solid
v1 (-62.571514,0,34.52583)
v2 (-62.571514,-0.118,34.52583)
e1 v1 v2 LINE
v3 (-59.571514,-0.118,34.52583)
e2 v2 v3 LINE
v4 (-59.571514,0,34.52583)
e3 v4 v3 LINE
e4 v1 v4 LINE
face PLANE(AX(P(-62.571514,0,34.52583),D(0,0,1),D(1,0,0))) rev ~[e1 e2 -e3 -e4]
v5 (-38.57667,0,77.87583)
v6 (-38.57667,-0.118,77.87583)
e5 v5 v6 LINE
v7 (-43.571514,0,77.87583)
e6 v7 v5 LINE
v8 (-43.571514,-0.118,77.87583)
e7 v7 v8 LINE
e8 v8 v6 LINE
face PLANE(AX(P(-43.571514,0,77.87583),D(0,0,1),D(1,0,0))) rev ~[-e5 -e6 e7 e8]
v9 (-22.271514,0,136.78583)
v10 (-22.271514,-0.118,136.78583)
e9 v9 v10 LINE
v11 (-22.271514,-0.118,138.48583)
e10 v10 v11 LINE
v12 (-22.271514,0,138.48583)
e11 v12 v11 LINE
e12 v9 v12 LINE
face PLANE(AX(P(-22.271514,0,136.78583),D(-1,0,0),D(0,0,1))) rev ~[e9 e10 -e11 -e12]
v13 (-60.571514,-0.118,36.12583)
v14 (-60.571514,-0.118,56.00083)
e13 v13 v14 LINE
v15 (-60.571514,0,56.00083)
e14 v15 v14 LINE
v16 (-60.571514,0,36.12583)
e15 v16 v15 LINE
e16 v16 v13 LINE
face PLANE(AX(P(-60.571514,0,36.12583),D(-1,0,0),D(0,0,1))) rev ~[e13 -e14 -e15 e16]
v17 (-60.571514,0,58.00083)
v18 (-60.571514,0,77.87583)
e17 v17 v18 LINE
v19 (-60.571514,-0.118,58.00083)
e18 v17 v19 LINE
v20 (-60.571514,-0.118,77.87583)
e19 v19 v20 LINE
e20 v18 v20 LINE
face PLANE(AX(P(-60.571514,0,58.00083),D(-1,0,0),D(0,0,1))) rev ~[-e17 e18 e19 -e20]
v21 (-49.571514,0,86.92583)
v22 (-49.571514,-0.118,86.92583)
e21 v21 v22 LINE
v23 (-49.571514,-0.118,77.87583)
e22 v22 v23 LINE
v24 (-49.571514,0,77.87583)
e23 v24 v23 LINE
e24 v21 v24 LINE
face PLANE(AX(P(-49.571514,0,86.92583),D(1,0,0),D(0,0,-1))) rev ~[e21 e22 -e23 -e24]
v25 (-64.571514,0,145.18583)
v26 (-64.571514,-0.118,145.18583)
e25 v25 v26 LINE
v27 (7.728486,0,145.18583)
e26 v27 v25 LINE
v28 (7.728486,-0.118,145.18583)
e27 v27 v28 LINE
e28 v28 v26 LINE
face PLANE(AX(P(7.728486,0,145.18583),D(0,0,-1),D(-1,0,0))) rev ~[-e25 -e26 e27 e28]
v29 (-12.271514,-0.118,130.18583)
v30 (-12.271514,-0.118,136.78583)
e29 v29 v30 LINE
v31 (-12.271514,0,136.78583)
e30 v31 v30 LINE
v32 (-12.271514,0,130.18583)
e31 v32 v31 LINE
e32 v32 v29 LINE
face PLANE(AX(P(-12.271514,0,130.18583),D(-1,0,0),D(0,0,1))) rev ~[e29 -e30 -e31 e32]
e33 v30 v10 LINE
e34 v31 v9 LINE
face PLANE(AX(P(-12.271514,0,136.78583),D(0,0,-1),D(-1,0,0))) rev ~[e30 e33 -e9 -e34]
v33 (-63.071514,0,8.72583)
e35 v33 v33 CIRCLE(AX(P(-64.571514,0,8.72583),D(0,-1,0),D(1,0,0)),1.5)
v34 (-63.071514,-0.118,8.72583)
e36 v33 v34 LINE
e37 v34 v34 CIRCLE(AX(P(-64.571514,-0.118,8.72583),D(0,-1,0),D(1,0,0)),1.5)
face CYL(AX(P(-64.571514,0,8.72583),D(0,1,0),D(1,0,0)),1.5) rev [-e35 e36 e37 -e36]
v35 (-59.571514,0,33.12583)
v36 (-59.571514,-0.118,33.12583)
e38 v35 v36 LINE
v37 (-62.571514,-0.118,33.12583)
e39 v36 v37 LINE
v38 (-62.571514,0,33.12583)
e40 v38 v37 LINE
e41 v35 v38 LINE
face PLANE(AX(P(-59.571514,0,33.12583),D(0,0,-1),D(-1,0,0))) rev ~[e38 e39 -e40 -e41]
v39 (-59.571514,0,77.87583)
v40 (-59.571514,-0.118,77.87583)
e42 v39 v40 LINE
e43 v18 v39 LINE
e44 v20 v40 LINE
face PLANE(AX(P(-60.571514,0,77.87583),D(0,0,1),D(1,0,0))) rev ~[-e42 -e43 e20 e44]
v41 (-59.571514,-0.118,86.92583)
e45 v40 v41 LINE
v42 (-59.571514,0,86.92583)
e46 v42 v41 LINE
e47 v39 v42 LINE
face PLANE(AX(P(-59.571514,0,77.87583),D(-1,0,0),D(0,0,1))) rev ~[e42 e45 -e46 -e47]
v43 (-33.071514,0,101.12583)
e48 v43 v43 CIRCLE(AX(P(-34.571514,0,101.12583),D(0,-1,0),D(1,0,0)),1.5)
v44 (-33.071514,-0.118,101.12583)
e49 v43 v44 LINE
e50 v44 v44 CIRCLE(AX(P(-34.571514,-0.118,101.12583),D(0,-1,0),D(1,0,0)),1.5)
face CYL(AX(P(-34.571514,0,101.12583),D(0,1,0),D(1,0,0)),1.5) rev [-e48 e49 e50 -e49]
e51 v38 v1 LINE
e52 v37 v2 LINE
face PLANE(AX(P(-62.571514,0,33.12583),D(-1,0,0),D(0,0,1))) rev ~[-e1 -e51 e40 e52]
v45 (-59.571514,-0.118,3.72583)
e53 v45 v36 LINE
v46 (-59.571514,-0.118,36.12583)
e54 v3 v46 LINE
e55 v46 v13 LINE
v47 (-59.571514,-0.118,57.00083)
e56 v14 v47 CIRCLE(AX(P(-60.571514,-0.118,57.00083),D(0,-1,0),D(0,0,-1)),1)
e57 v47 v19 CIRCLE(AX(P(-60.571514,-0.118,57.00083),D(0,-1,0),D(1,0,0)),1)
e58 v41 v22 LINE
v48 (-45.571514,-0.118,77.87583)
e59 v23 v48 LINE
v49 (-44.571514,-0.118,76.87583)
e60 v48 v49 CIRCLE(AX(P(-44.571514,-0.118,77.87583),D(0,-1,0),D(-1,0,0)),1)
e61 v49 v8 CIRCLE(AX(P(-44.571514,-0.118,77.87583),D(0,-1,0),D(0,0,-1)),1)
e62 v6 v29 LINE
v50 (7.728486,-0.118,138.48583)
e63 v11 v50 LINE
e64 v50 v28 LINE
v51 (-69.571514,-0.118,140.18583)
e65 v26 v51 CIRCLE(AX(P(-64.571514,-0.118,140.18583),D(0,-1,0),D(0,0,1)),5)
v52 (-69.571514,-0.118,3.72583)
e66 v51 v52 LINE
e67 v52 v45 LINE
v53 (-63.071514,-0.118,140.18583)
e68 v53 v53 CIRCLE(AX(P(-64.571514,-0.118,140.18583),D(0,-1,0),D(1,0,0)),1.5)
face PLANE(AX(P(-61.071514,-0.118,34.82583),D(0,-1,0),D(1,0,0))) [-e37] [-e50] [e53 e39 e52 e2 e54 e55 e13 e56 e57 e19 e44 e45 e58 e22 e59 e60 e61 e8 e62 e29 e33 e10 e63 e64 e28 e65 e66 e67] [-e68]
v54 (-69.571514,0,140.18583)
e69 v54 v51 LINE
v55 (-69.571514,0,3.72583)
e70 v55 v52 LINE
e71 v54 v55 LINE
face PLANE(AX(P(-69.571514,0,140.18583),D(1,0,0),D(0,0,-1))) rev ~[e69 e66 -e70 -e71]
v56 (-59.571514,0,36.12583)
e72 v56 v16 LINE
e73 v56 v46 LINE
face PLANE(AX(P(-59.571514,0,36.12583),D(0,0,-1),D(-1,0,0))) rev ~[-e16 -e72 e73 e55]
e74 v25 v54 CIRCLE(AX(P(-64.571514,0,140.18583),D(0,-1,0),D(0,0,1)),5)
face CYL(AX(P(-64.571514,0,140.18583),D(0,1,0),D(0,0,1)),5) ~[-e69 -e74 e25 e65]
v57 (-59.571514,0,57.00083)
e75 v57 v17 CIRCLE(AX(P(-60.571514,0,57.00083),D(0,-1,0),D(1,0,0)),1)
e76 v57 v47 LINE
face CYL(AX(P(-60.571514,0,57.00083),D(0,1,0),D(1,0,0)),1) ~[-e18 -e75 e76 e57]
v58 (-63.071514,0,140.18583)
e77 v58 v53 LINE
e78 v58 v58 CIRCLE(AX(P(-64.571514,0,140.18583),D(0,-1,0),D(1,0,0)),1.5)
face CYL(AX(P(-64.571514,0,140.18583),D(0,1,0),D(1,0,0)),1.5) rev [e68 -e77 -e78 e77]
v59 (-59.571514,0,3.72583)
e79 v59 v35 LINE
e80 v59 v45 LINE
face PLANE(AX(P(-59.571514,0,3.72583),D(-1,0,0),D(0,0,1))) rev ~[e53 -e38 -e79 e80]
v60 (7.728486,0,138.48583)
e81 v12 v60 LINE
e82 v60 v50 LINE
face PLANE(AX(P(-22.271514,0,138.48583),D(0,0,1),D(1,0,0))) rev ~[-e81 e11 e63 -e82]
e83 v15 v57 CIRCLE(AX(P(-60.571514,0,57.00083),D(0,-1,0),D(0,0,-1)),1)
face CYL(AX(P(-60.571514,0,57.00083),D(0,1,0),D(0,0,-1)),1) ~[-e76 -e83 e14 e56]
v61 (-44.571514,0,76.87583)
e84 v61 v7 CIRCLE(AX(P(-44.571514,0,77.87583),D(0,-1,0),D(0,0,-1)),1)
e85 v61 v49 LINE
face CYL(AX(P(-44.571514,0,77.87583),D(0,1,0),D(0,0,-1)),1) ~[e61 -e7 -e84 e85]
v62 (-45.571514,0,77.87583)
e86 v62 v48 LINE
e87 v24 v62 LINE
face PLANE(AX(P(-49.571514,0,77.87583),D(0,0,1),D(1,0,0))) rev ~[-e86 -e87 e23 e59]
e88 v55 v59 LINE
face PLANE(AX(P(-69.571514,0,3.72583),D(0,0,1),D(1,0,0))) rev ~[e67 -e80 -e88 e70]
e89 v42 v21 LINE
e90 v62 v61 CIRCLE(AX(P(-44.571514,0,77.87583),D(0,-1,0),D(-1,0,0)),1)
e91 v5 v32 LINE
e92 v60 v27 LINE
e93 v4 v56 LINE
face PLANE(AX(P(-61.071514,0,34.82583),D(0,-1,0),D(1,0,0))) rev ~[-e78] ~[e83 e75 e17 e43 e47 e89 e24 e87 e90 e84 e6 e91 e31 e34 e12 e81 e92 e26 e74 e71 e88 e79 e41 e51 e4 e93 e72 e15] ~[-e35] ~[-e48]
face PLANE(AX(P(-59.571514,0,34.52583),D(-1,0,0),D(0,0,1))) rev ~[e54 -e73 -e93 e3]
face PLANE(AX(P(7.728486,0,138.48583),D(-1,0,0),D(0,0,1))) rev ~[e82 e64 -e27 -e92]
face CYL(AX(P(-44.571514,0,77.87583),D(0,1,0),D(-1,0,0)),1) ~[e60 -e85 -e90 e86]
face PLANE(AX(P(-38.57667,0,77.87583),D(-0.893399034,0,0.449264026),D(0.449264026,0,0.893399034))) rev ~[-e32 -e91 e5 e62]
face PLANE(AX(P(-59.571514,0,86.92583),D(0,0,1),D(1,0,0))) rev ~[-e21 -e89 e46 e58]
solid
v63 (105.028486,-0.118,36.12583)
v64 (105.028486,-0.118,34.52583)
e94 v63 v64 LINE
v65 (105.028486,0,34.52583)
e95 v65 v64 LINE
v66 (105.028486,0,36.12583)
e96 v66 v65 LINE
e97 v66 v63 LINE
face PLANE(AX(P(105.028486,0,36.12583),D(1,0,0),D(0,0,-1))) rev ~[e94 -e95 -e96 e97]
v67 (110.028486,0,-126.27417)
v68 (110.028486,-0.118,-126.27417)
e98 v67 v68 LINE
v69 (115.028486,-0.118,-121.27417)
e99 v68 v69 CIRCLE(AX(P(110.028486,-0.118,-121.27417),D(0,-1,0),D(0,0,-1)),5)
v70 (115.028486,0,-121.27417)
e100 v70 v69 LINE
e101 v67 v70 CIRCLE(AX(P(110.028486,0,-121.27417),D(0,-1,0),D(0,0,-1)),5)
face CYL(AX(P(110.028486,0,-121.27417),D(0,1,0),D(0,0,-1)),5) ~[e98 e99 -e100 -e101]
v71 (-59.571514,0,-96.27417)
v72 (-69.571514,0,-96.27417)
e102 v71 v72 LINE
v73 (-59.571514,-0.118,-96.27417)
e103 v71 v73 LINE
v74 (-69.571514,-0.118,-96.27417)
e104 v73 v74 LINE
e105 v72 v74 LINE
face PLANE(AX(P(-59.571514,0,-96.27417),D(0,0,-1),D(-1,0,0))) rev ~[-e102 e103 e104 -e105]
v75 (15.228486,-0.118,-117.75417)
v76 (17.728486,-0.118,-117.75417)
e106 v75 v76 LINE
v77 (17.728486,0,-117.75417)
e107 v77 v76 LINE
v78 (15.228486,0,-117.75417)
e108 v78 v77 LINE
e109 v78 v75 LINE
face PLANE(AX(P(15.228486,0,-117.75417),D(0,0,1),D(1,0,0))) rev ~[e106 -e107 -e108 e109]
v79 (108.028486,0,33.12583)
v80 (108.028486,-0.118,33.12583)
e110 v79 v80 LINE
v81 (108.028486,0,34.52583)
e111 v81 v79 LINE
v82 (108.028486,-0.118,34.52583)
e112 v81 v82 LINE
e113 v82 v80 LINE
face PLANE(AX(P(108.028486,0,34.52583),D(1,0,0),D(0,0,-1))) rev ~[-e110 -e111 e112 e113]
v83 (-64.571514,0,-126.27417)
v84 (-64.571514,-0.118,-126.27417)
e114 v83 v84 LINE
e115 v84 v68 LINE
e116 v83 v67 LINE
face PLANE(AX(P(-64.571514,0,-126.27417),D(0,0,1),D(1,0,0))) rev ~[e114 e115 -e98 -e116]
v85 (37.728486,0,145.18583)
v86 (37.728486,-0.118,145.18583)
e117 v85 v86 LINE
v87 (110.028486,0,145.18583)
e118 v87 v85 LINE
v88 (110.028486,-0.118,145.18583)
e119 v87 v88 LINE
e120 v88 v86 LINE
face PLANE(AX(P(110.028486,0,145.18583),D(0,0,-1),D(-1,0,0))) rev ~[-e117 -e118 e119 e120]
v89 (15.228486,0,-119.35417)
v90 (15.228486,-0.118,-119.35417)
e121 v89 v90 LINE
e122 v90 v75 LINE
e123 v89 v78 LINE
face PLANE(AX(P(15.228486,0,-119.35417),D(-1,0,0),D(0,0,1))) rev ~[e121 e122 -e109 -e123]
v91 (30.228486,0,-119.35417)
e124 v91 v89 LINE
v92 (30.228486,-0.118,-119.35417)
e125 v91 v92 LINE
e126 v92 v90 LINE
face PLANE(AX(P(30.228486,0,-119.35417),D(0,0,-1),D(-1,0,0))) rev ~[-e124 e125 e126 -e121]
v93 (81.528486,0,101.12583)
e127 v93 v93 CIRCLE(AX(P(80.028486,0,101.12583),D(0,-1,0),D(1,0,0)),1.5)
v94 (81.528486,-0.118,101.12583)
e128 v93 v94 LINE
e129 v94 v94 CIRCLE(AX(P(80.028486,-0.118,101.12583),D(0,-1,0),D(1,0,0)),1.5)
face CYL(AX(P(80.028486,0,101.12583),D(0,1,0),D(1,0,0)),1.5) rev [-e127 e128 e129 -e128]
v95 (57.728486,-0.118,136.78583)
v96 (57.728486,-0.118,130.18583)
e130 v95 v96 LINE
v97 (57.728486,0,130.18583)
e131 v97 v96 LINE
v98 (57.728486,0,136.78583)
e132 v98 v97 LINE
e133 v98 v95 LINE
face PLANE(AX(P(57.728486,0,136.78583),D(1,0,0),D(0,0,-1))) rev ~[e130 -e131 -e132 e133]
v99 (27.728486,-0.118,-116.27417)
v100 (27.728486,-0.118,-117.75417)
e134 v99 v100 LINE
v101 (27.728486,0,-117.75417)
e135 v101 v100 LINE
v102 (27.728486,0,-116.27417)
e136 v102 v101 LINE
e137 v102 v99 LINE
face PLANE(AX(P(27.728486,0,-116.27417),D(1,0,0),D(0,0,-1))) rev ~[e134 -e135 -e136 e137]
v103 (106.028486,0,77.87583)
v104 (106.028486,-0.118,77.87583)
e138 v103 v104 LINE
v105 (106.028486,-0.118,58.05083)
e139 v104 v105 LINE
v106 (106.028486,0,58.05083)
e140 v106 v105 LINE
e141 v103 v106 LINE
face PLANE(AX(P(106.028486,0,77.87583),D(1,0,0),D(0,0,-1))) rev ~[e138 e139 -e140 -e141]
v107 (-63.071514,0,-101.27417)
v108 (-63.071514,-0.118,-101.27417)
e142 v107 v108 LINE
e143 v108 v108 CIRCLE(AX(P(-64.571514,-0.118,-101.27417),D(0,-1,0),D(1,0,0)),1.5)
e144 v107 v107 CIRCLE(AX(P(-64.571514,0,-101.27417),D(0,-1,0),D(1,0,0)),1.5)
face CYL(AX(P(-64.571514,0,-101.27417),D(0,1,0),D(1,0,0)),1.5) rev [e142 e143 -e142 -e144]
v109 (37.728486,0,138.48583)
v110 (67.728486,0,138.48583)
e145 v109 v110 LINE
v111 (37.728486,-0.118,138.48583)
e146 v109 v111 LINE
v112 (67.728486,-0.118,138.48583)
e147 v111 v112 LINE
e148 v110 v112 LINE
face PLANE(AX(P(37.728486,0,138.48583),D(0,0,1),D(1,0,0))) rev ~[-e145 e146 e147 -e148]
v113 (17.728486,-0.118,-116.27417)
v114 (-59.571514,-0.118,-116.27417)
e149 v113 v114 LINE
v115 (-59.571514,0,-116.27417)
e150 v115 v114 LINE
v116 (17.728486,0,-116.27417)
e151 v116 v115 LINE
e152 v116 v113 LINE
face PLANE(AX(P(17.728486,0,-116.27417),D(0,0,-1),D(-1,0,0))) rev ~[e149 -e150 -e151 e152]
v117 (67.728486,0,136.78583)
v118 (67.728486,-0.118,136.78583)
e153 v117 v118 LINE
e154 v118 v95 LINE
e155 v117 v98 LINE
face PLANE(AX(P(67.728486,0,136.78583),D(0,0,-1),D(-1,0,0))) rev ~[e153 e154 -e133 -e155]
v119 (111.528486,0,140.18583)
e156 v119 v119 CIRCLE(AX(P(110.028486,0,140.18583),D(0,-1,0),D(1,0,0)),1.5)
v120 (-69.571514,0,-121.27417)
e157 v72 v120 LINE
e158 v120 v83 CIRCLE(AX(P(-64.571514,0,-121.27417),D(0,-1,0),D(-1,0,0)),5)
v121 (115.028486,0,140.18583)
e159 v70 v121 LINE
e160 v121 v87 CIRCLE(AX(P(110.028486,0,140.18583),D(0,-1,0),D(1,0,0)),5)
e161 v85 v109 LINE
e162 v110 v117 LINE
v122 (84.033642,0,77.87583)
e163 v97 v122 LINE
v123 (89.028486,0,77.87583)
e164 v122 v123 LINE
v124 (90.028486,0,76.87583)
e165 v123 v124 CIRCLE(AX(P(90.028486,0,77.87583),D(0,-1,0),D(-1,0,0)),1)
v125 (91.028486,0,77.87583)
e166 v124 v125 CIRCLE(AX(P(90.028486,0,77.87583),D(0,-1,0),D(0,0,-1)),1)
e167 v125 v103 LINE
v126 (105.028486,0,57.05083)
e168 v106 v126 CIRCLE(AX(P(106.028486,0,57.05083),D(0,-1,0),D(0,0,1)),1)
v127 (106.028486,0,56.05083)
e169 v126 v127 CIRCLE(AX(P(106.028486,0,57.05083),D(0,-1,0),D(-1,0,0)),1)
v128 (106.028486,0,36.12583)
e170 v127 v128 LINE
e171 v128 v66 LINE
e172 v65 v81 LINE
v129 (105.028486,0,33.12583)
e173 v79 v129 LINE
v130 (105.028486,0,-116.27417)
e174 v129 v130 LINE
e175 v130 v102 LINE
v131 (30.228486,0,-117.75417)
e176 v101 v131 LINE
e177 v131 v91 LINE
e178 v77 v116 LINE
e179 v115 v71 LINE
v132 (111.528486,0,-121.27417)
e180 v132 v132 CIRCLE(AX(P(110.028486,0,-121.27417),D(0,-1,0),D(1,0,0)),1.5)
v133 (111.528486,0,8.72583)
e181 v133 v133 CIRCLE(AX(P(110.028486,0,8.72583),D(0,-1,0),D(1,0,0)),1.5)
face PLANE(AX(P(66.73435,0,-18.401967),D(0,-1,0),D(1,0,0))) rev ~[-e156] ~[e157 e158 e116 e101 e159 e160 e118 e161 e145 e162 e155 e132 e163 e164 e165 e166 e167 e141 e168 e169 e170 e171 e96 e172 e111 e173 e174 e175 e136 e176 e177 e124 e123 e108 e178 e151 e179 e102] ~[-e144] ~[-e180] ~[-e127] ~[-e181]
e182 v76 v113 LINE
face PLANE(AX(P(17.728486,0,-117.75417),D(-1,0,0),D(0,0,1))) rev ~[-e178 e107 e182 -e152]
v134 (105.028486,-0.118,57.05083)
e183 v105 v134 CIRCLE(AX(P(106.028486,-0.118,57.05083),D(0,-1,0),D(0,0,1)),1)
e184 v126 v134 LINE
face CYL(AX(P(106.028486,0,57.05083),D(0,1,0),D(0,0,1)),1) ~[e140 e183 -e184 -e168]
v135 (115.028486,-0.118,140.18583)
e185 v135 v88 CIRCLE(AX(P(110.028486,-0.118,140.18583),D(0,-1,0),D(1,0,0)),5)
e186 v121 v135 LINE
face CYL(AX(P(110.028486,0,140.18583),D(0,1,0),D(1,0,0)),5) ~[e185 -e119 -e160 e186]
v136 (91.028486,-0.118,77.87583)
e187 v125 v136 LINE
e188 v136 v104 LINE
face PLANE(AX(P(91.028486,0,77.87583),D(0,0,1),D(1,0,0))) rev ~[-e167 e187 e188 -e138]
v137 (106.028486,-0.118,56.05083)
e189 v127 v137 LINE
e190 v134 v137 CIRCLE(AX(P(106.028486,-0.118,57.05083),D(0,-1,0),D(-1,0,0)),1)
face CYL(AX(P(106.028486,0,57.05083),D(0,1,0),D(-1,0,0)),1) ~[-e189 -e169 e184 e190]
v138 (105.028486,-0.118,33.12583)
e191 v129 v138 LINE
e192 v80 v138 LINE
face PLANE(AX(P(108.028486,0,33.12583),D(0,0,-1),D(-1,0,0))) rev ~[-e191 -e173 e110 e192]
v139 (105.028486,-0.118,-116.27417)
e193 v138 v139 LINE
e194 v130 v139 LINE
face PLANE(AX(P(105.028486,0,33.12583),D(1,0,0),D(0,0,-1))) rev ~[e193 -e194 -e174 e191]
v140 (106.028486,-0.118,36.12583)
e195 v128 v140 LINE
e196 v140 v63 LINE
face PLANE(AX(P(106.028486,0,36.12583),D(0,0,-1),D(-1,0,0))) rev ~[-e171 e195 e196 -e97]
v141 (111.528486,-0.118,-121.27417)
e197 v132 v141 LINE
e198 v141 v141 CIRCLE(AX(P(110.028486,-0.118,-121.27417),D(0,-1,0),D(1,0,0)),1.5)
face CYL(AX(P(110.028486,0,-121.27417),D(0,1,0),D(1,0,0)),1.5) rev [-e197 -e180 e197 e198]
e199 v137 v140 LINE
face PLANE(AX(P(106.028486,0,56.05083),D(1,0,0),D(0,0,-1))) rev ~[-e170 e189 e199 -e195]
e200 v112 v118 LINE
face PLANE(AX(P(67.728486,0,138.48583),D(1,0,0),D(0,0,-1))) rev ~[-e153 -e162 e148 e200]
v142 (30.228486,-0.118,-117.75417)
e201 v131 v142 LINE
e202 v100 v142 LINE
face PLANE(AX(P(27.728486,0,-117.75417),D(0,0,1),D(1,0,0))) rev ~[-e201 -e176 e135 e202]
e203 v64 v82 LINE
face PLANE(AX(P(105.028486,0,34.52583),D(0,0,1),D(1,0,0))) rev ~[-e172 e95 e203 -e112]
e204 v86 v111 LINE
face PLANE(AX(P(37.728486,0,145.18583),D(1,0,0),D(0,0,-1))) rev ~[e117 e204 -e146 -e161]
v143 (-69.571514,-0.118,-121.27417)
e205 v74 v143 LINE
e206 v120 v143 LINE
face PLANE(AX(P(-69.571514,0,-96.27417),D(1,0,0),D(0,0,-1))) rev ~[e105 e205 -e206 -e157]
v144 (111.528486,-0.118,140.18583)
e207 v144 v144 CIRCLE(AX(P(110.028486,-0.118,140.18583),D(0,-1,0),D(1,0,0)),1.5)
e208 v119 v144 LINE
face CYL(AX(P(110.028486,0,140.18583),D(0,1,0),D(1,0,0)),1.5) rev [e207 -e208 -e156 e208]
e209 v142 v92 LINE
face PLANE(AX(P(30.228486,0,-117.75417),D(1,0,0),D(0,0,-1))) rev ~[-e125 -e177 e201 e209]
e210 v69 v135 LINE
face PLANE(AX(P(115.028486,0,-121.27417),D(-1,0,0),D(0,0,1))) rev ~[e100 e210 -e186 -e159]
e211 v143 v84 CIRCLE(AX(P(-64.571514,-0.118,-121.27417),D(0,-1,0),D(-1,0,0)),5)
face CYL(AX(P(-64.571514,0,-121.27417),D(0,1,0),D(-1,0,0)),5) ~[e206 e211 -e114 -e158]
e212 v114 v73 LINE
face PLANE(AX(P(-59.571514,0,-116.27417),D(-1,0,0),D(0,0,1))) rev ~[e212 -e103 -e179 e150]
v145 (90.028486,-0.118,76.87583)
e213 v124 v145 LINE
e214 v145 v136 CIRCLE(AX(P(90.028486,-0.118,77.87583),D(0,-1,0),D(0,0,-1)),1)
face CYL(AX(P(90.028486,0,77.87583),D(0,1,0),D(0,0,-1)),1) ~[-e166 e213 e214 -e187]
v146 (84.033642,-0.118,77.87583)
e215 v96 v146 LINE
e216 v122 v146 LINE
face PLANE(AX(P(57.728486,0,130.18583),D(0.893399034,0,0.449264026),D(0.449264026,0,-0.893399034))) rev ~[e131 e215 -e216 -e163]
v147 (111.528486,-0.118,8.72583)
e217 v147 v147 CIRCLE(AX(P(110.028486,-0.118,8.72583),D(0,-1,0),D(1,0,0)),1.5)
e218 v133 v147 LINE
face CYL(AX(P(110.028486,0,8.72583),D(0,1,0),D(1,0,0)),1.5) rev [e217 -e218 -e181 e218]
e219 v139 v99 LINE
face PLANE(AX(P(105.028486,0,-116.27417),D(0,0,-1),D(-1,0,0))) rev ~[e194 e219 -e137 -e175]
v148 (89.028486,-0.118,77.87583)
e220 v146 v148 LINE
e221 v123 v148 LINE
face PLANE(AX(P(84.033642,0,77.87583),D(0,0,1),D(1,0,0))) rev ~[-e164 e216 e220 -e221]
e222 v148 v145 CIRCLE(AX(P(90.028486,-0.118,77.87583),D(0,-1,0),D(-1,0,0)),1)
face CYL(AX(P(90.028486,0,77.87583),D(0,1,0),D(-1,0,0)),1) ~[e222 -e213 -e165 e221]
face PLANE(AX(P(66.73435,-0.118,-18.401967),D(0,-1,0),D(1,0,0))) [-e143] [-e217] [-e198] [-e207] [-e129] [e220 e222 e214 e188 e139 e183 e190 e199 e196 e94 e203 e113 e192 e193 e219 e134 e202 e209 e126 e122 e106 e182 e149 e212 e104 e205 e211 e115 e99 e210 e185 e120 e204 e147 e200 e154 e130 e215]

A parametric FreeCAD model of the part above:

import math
import FreeCAD as App
import Part
import Sketcher
Q = App.Units.Quantity

doc = App.newDocument("Part")
body = doc.addObject("PartDesign::Body", "Body")

# Sketch on XZ plane
sketch1 = body.newObject("Sketcher::SketchObject", "Sketch")
sketch1.AttachmentSupport = (doc.getObject("XZ_Plane"), [""])
sketch1.MapMode = "FlatFace"
sketch1.addGeometry([
    Part.LineSegment(App.Vector(110, 145.2, 0), App.Vector(37.7, 145.2, 0)),  # 0
    Part.LineSegment(App.Vector(37.7, 145.2, 0), App.Vector(37.7, 138.5, 0)),  # 1
    Part.LineSegment(App.Vector(37.7, 138.5, 0), App.Vector(67.7, 138.5, 0)),  # 2
    Part.LineSegment(App.Vector(67.7, 138.5, 0), App.Vector(67.7, 136.8, 0)),  # 3
    Part.LineSegment(App.Vector(67.7, 136.8, 0), App.Vector(57.7, 136.8, 0)),  # 4
    Part.LineSegment(App.Vector(57.7, 136.8, 0), App.Vector(57.7, 130.2, 0)),  # 5
    Part.LineSegment(App.Vector(57.7, 130.2, 0), App.Vector(84, 77.9, 0)),  # 6
    Part.LineSegment(App.Vector(84, 77.9, 0), App.Vector(89, 77.9, 0)),  # 7
    Part.ArcOfCircle(Part.Circle(App.Vector(90, 77.9, 0), App.Vector(0, 0, 1), 1), math.radians(180), math.radians(270)),  # 8
    Part.ArcOfCircle(Part.Circle(App.Vector(90, 77.9, 0), App.Vector(0, 0, 1), 1), math.radians(-90), math.radians(0)),  # 9
    Part.LineSegment(App.Vector(91, 77.9, 0), App.Vector(106, 77.9, 0)),  # 10
    Part.LineSegment(App.Vector(106, 77.9, 0), App.Vector(106, 58.1, 0)),  # 11
    Part.ArcOfCircle(Part.Circle(App.Vector(106, 57.1, 0), App.Vector(0, 0, 1), 1), math.radians(90), math.radians(180)),  # 12
    Part.ArcOfCircle(Part.Circle(App.Vector(106, 57.1, 0), App.Vector(0, 0, 1), 1), math.radians(180), math.radians(270)),  # 13
    Part.LineSegment(App.Vector(106, 56.1, 0), App.Vector(106, 36.1, 0)),  # 14
    Part.LineSegment(App.Vector(106, 36.1, 0), App.Vector(105, 36.1, 0)),  # 15
    Part.LineSegment(App.Vector(105, 36.1, 0), App.Vector(105, 34.5, 0)),  # 16
    Part.LineSegment(App.Vector(105, 34.5, 0), App.Vector(108, 34.5, 0)),  # 17
    Part.LineSegment(App.Vector(108, 34.5, 0), App.Vector(108, 33.1, 0)),  # 18
    Part.LineSegment(App.Vector(108, 33.1, 0), App.Vector(105, 33.1, 0)),  # 19
    Part.LineSegment(App.Vector(105, 33.1, 0), App.Vector(105, -116.3, 0)),  # 20
    Part.LineSegment(App.Vector(105, -116.3, 0), App.Vector(27.7, -116.3, 0)),  # 21
    Part.LineSegment(App.Vector(27.7, -116.3, 0), App.Vector(27.7, -117.8, 0)),  # 22
    Part.LineSegment(App.Vector(27.7, -117.8, 0), App.Vector(30.2, -117.8, 0)),  # 23
    Part.LineSegment(App.Vector(30.2, -117.8, 0), App.Vector(30.2, -119.4, 0)),  # 24
    Part.LineSegment(App.Vector(30.2, -119.4, 0), App.Vector(15.2, -119.4, 0)),  # 25
    Part.LineSegment(App.Vector(15.2, -119.4, 0), App.Vector(15.2, -117.8, 0)),  # 26
    Part.LineSegment(App.Vector(15.2, -117.8, 0), App.Vector(17.7, -117.8, 0)),  # 27
    Part.LineSegment(App.Vector(17.7, -117.8, 0), App.Vector(17.7, -116.3, 0)),  # 28
    Part.LineSegment(App.Vector(17.7, -116.3, 0), App.Vector(-59.6, -116.3, 0)),  # 29
    Part.LineSegment(App.Vector(-59.6, -116.3, 0), App.Vector(-59.6, -96.3, 0)),  # 30
    Part.LineSegment(App.Vector(-59.6, -96.3, 0), App.Vector(-69.6, -96.3, 0)),  # 31
    Part.LineSegment(App.Vector(-69.6, -96.3, 0), App.Vector(-69.6, -121.3, 0)),  # 32
    Part.ArcOfCircle(Part.Circle(App.Vector(-64.6, -121.3, 0), App.Vector(0, 0, 1), 5), math.radians(-180), math.radians(-90)),  # 33
    Part.LineSegment(App.Vector(-64.6, -126.3, 0), App.Vector(110, -126.3, 0)),  # 34
    Part.ArcOfCircle(Part.Circle(App.Vector(110, -121.3, 0), App.Vector(0, 0, 1), 5), math.radians(-90), math.radians(0)),  # 35
    Part.LineSegment(App.Vector(115, -121.3, 0), App.Vector(115, 140.2, 0)),  # 36
    Part.ArcOfCircle(Part.Circle(App.Vector(110, 140.2, 0), App.Vector(0, 0, 1), 5), math.radians(0), math.radians(90)),  # 37
    Part.Circle(App.Vector(-64.6, -101.3, 0), App.Vector(0, 0, 1), 1.5),  # 38
    Part.Circle(App.Vector(110, -121.3, 0), App.Vector(0, 0, 1), 1.5),  # 39
    Part.Circle(App.Vector(110, 8.7, 0), App.Vector(0, 0, 1), 1.5),  # 40
    Part.Circle(App.Vector(80, 101.1, 0), App.Vector(0, 0, 1), 1.5),  # 41
    Part.Circle(App.Vector(110, 140.2, 0), App.Vector(0, 0, 1), 1.5),  # 42
], False)
sketch1.addConstraint([
    Sketcher.Constraint("Coincident", 0, 2, 1, 1),
    Sketcher.Constraint("Coincident", 1, 2, 2, 1),
    Sketcher.Constraint("Coincident", 2, 2, 3, 1),
    Sketcher.Constraint("Coincident", 3, 2, 4, 1),
    Sketcher.Constraint("Coincident", 4, 2, 5, 1),
    Sketcher.Constraint("Coincident", 5, 2, 6, 1),
    Sketcher.Constraint("Coincident", 6, 2, 7, 1),
    Sketcher.Constraint("Coincident", 7, 2, 8, 1),
    Sketcher.Constraint("Tangent", 8, 2, 9, 1),
    Sketcher.Constraint("Coincident", 9, 2, 10, 1),
    Sketcher.Constraint("Coincident", 10, 2, 11, 1),
    Sketcher.Constraint("Coincident", 11, 2, 12, 1),
    Sketcher.Constraint("Tangent", 12, 2, 13, 1),
    Sketcher.Constraint("Coincident", 13, 2, 14, 1),
    Sketcher.Constraint("Coincident", 14, 2, 15, 1),
    Sketcher.Constraint("Coincident", 15, 2, 16, 1),
    Sketcher.Constraint("Coincident", 16, 2, 17, 1),
    Sketcher.Constraint("Coincident", 17, 2, 18, 1),
    Sketcher.Constraint("Coincident", 18, 2, 19, 1),
    Sketcher.Constraint("Coincident", 19, 2, 20, 1),
    Sketcher.Constraint("Coincident", 20, 2, 21, 1),
    Sketcher.Constraint("Coincident", 21, 2, 22, 1),
    Sketcher.Constraint("Coincident", 22, 2, 23, 1),
    Sketcher.Constraint("Coincident", 23, 2, 24, 1),
    Sketcher.Constraint("Coincident", 24, 2, 25, 1),
    Sketcher.Constraint("Coincident", 25, 2, 26, 1),
    Sketcher.Constraint("Coincident", 26, 2, 27, 1),
    Sketcher.Constraint("Coincident", 27, 2, 28, 1),
    Sketcher.Constraint("Coincident", 28, 2, 29, 1),
    Sketcher.Constraint("Coincident", 29, 2, 30, 1),
    Sketcher.Constraint("Coincident", 30, 2, 31, 1),
    Sketcher.Constraint("Coincident", 31, 2, 32, 1),
    Sketcher.Constraint("Tangent", 32, 2, 33, 1),
    Sketcher.Constraint("Tangent", 33, 2, 34, 1),
    Sketcher.Constraint("Tangent", 34, 2, 35, 1),
    Sketcher.Constraint("Tangent", 35, 2, 36, 1),
    Sketcher.Constraint("Tangent", 36, 2, 37, 1),
    Sketcher.Constraint("Tangent", 37, 2, 0, 1),
    Sketcher.Constraint("Horizontal", 0),
    Sketcher.Constraint("Vertical", 1),
    Sketcher.Constraint("Horizontal", 2),
    Sketcher.Constraint("Vertical", 3),
    Sketcher.Constraint("Horizontal", 4),
    Sketcher.Constraint("Vertical", 5),
    Sketcher.Constraint("Horizontal", 7),
    Sketcher.Constraint("Horizontal", 10),
    Sketcher.Constraint("Vertical", 11),
    Sketcher.Constraint("Vertical", 14),
    Sketcher.Constraint("Horizontal", 15),
    Sketcher.Constraint("Vertical", 16),
    Sketcher.Constraint("Horizontal", 17),
    Sketcher.Constraint("Vertical", 18),
    Sketcher.Constraint("Horizontal", 19),
    Sketcher.Constraint("Vertical", 20),
    Sketcher.Constraint("Horizontal", 21),
    Sketcher.Constraint("Vertical", 22),
    Sketcher.Constraint("Horizontal", 23),
    Sketcher.Constraint("Vertical", 24),
    Sketcher.Constraint("Horizontal", 25),
    Sketcher.Constraint("Vertical", 26),
    Sketcher.Constraint("Horizontal", 27),
    Sketcher.Constraint("Vertical", 28),
    Sketcher.Constraint("Horizontal", 29),
    Sketcher.Constraint("Vertical", 30),
    Sketcher.Constraint("Horizontal", 31),
    Sketcher.Constraint("Vertical", 32),
    Sketcher.Constraint("Horizontal", 34),
    Sketcher.Constraint("Vertical", 36),
    Sketcher.Constraint("Coincident", 39, 3, 35, 3),
    Sketcher.Constraint("Coincident", 42, 3, 37, 3),
    Sketcher.Constraint("Equal", 8, 9),
    Sketcher.Constraint("Equal", 9, 12),
    Sketcher.Constraint("Equal", 12, 13),
    Sketcher.Constraint("Equal", 33, 35),
    Sketcher.Constraint("Equal", 35, 37),
    Sketcher.Constraint("Equal", 38, 39),
    Sketcher.Constraint("Equal", 39, 40),
    Sketcher.Constraint("Equal", 40, 41),
    Sketcher.Constraint("Equal", 41, 42),
    Sketcher.Constraint("Horizontal", 9, 3, 6, 2),
    Sketcher.Constraint("Horizontal", 7, 2, 9, 2),
    Sketcher.Constraint("Horizontal", 13, 3, 12, 2),
    Sketcher.Constraint("Horizontal", 23, 2, 26, 2),
    Sketcher.Constraint("Horizontal", 21, 2, 28, 2),
    Sketcher.Constraint("Vertical", 33, 3, 38, 3),
    Sketcher.Constraint("Vertical", 39, 3, 40, 3),
    Sketcher.Constraint("Vertical", 9, 3, 8, 2),
    Sketcher.Constraint("Vertical", 13, 3, 10, 2),
    Sketcher.Constraint("Vertical", 11, 2, 13, 2),
    Sketcher.Constraint("Vertical", 12, 2, 15, 2),
    Sketcher.Constraint("Vertical", 16, 2, 19, 2),
    Sketcher.Constraint("Equal", 10, 25),
    Sketcher.Constraint("Equal", 23, 27),
    Sketcher.Constraint("Equal", 21, 29),
    Sketcher.Constraint("Equal", 4, 31),
    Sketcher.Constraint("Equal", 16, 24),
    Sketcher.Constraint("Diameter", 38, Q("3 mm")),
    Sketcher.Constraint("Radius", 8, Q("1 mm")),
    Sketcher.Constraint("Radius", 33, Q("5 mm")),
    Sketcher.Constraint("DistanceX", 2, 1, 2, 2, Q("30 mm")),
    Sketcher.Constraint("DistanceX", 4, 2, 4, 1, Q("10 mm")),
    Sketcher.Constraint("DistanceX", 10, 1, 10, 2, Q("15 mm")),
    Sketcher.Constraint("DistanceX", 17, 1, 17, 2, Q("3 mm")),
    Sketcher.Constraint("DistanceY", 30, 1, 30, 2, Q("20 mm")),
    Sketcher.Constraint("DistanceY", 32, 2, 32, 1, Q("25 mm")),
    Sketcher.Constraint("DistanceX", 0, 2, 0, 1, Q("72.3 mm")),
    Sketcher.Constraint("DistanceX", 21, 2, 21, 1, Q("77.3 mm")),
    Sketcher.Constraint("DistanceX", 23, 1, 23, 2, Q("2.5 mm")),
    Sketcher.Constraint("DistanceX", 34, 1, 34, 2, Q("174.6 mm")),
    Sketcher.Constraint("DistanceY", 1, 2, 1, 1, Q("6.7 mm")),
    Sketcher.Constraint("DistanceY", 3, 2, 3, 1, Q("1.7 mm")),
    Sketcher.Constraint("DistanceY", 5, 2, 5, 1, Q("6.6 mm")),
    Sketcher.Constraint("DistanceY", 16, 2, 16, 1, Q("1.6 mm")),
    Sketcher.Constraint("DistanceY", 18, 2, 18, 1, Q("1.4 mm")),
    Sketcher.Constraint("DistanceY", 20, 2, 20, 1, Q("149.4 mm")),
    Sketcher.Constraint("DistanceY", 33, 3, 38, 3, Q("20 mm")),
    Sketcher.Constraint("DistanceY", 35, 3, 40, 3, Q("130 mm")),
    Sketcher.Constraint("DistanceX", 41, 3, 8, 3, Q("10 mm")),
    Sketcher.Constraint("DistanceY", 22, 2, 22, 1, Q("1.48 mm")),
    Sketcher.Constraint("DistanceY", 36, 1, 36, 2, Q("261.46 mm")),
    Sketcher.Constraint("DistanceY", 11, 2, 11, 1, Q("19.825 mm")),
    Sketcher.Constraint("DistanceY", 14, 2, 14, 1, Q("19.925 mm")),
    Sketcher.Constraint("DistanceY", 8, 3, 41, 3, Q("23.25 mm")),
    Sketcher.Constraint("DistanceX", 7, 1, 7, 2, Q("4.994844 mm")),
    Sketcher.Constraint("DistanceY", -1, 1, 8, 3, Q("77.87583 mm")),
    Sketcher.Constraint("DistanceX", -1, 1, 8, 3, Q("90.028486 mm")),
])
pad1 = body.newObject("PartDesign::Pad", "Pad")
pad1.Profile = sketch1
pad1.Length = 0.118
body2 = doc.addObject("PartDesign::Body", "Body001")

# Sketch on XZ plane
sketch2 = body2.newObject("Sketcher::SketchObject", "Sketch001")
sketch2.AttachmentSupport = (doc.getObject("XZ_Plane001"), [""])
sketch2.MapMode = "FlatFace"
sketch2.addGeometry([
    Part.LineSegment(App.Vector(-62.6, 34.5, 0), App.Vector(-59.6, 34.5, 0)),  # 0
    Part.LineSegment(App.Vector(-59.6, 34.5, 0), App.Vector(-59.6, 36.1, 0)),  # 1
    Part.LineSegment(App.Vector(-59.6, 36.1, 0), App.Vector(-60.6, 36.1, 0)),  # 2
    Part.LineSegment(App.Vector(-60.6, 36.1, 0), App.Vector(-60.6, 56, 0)),  # 3
    Part.ArcOfCircle(Part.Circle(App.Vector(-60.6, 57, 0), App.Vector(0, 0, 1), 1), math.radians(-90), math.radians(0)),  # 4
    Part.ArcOfCircle(Part.Circle(App.Vector(-60.6, 57, 0), App.Vector(0, 0, 1), 1), math.radians(0), math.radians(90)),  # 5
    Part.LineSegment(App.Vector(-60.6, 58, 0), App.Vector(-60.6, 77.9, 0)),  # 6
    Part.LineSegment(App.Vector(-60.6, 77.9, 0), App.Vector(-59.6, 77.9, 0)),  # 7
    Part.LineSegment(App.Vector(-59.6, 77.9, 0), App.Vector(-59.6, 86.9, 0)),  # 8
    Part.LineSegment(App.Vector(-59.6, 86.9, 0), App.Vector(-49.6, 86.9, 0)),  # 9
    Part.LineSegment(App.Vector(-49.6, 86.9, 0), App.Vector(-49.6, 77.9, 0)),  # 10
    Part.LineSegment(App.Vector(-49.6, 77.9, 0), App.Vector(-45.6, 77.9, 0)),  # 11
    Part.ArcOfCircle(Part.Circle(App.Vector(-44.6, 77.9, 0), App.Vector(0, 0, 1), 1), math.radians(180), math.radians(270)),  # 12
    Part.ArcOfCircle(Part.Circle(App.Vector(-44.6, 77.9, 0), App.Vector(0, 0, 1), 1), math.radians(-90), math.radians(0)),  # 13
    Part.LineSegment(App.Vector(-43.6, 77.9, 0), App.Vector(-38.6, 77.9, 0)),  # 14
    Part.LineSegment(App.Vector(-38.6, 77.9, 0), App.Vector(-12.3, 130.2, 0)),  # 15
    Part.LineSegment(App.Vector(-12.3, 130.2, 0), App.Vector(-12.3, 136.8, 0)),  # 16
    Part.LineSegment(App.Vector(-12.3, 136.8, 0), App.Vector(-22.3, 136.8, 0)),  # 17
    Part.LineSegment(App.Vector(-22.3, 136.8, 0), App.Vector(-22.3, 138.5, 0)),  # 18
    Part.LineSegment(App.Vector(-22.3, 138.5, 0), App.Vector(7.7, 138.5, 0)),  # 19
    Part.LineSegment(App.Vector(7.7, 138.5, 0), App.Vector(7.7, 145.2, 0)),  # 20
    Part.LineSegment(App.Vector(7.7, 145.2, 0), App.Vector(-64.6, 145.2, 0)),  # 21
    Part.ArcOfCircle(Part.Circle(App.Vector(-64.6, 140.2, 0), App.Vector(0, 0, 1), 5), math.radians(90), math.radians(180)),  # 22
    Part.LineSegment(App.Vector(-69.6, 140.2, 0), App.Vector(-69.6, 3.7, 0)),  # 23
    Part.LineSegment(App.Vector(-69.6, 3.7, 0), App.Vector(-59.6, 3.7, 0)),  # 24
    Part.LineSegment(App.Vector(-59.6, 3.7, 0), App.Vector(-59.6, 33.1, 0)),  # 25
    Part.LineSegment(App.Vector(-59.6, 33.1, 0), App.Vector(-62.6, 33.1, 0)),  # 26
    Part.LineSegment(App.Vector(-62.6, 33.1, 0), App.Vector(-62.6, 34.5, 0)),  # 27
    Part.Circle(App.Vector(-64.6, 8.7, 0), App.Vector(0, 0, 1), 1.5),  # 28
    Part.Circle(App.Vector(-64.6, 140.2, 0), App.Vector(0, 0, 1), 1.5),  # 29
    Part.Circle(App.Vector(-34.6, 101.1, 0), App.Vector(0, 0, 1), 1.5),  # 30
], False)
sketch2.addConstraint([
    Sketcher.Constraint("Coincident", 0, 2, 1, 1),
    Sketcher.Constraint("Coincident", 1, 2, 2, 1),
    Sketcher.Constraint("Coincident", 2, 2, 3, 1),
    Sketcher.Constraint("Coincident", 3, 2, 4, 1),
    Sketcher.Constraint("Tangent", 4, 2, 5, 1),
    Sketcher.Constraint("Coincident", 5, 2, 6, 1),
    Sketcher.Constraint("Coincident", 6, 2, 7, 1),
    Sketcher.Constraint("Coincident", 7, 2, 8, 1),
    Sketcher.Constraint("Coincident", 8, 2, 9, 1),
    Sketcher.Constraint("Coincident", 9, 2, 10, 1),
    Sketcher.Constraint("Coincident", 10, 2, 11, 1),
    Sketcher.Constraint("Coincident", 11, 2, 12, 1),
    Sketcher.Constraint("Tangent", 12, 2, 13, 1),
    Sketcher.Constraint("Coincident", 13, 2, 14, 1),
    Sketcher.Constraint("Coincident", 14, 2, 15, 1),
    Sketcher.Constraint("Coincident", 15, 2, 16, 1),
    Sketcher.Constraint("Coincident", 16, 2, 17, 1),
    Sketcher.Constraint("Coincident", 17, 2, 18, 1),
    Sketcher.Constraint("Coincident", 18, 2, 19, 1),
    Sketcher.Constraint("Coincident", 19, 2, 20, 1),
    Sketcher.Constraint("Coincident", 20, 2, 21, 1),
    Sketcher.Constraint("Tangent", 21, 2, 22, 1),
    Sketcher.Constraint("Tangent", 22, 2, 23, 1),
    Sketcher.Constraint("Coincident", 23, 2, 24, 1),
    Sketcher.Constraint("Coincident", 24, 2, 25, 1),
    Sketcher.Constraint("Coincident", 25, 2, 26, 1),
    Sketcher.Constraint("Coincident", 26, 2, 27, 1),
    Sketcher.Constraint("Coincident", 27, 2, 0, 1),
    Sketcher.Constraint("Horizontal", 0),
    Sketcher.Constraint("Vertical", 1),
    Sketcher.Constraint("Horizontal", 2),
    Sketcher.Constraint("Vertical", 3),
    Sketcher.Constraint("Vertical", 6),
    Sketcher.Constraint("Horizontal", 7),
    Sketcher.Constraint("Vertical", 8),
    Sketcher.Constraint("Horizontal", 9),
    Sketcher.Constraint("Vertical", 10),
    Sketcher.Constraint("Horizontal", 11),
    Sketcher.Constraint("Horizontal", 14),
    Sketcher.Constraint("Vertical", 16),
    Sketcher.Constraint("Horizontal", 17),
    Sketcher.Constraint("Vertical", 18),
    Sketcher.Constraint("Horizontal", 19),
    Sketcher.Constraint("Vertical", 20),
    Sketcher.Constraint("Horizontal", 21),
    Sketcher.Constraint("Vertical", 23),
    Sketcher.Constraint("Horizontal", 24),
    Sketcher.Constraint("Vertical", 25),
    Sketcher.Constraint("Horizontal", 26),
    Sketcher.Constraint("Vertical", 27),
    Sketcher.Constraint("Coincident", 29, 3, 22, 3),
    Sketcher.Constraint("Equal", 4, 5),
    Sketcher.Constraint("Equal", 5, 12),
    Sketcher.Constraint("Equal", 12, 13),
    Sketcher.Constraint("Equal", 28, 29),
    Sketcher.Constraint("Equal", 29, 30),
    Sketcher.Constraint("Horizontal", 5, 3, 4, 2),
    Sketcher.Constraint("Horizontal", 13, 3, 6, 2),
    Sketcher.Constraint("Horizontal", 7, 2, 10, 2),
    Sketcher.Constraint("Horizontal", 11, 2, 13, 2),
    Sketcher.Constraint("Vertical", 22, 3, 28, 3),
    Sketcher.Constraint("Vertical", 5, 3, 2, 2),
    Sketcher.Constraint("Vertical", 1, 2, 4, 2),
    Sketcher.Constraint("Vertical", 3, 2, 5, 2),
    Sketcher.Constraint("Vertical", 4, 2, 7, 2),
    Sketcher.Constraint("Vertical", 13, 3, 12, 2),
    Sketcher.Constraint("Vertical", 8, 2, 24, 2),
    Sketcher.Constraint("Equal", 9, 17),
    Sketcher.Constraint("Equal", 17, 24),
    Sketcher.Constraint("Equal", 3, 6),
    Sketcher.Constraint("Diameter", 28, Q("3 mm")),
    Sketcher.Constraint("Radius", 4, Q("1 mm")),
    Sketcher.Constraint("Radius", 22, Q("5 mm")),
    Sketcher.Constraint("DistanceX", 0, 1, 0, 2, Q("3 mm")),
    Sketcher.Constraint("DistanceX", 9, 1, 9, 2, Q("10 mm")),
    Sketcher.Constraint("DistanceX", 11, 1, 11, 2, Q("4 mm")),
    Sketcher.Constraint("DistanceX", 19, 1, 19, 2, Q("30 mm")),
    Sketcher.Constraint("DistanceX", 21, 2, 21, 1, Q("72.3 mm")),
    Sketcher.Constraint("DistanceY", 1, 1, 1, 2, Q("1.6 mm")),
    Sketcher.Constraint("DistanceY", 16, 1, 16, 2, Q("6.6 mm")),
    Sketcher.Constraint("DistanceY", 18, 1, 18, 2, Q("1.7 mm")),
    Sketcher.Constraint("DistanceY", 20, 1, 20, 2, Q("6.7 mm")),
    Sketcher.Constraint("DistanceY", 25, 1, 25, 2, Q("29.4 mm")),
    Sketcher.Constraint("DistanceY", 27, 1, 27, 2, Q("1.4 mm")),
    Sketcher.Constraint("DistanceX", 12, 3, 30, 3, Q("10 mm")),
    Sketcher.Constraint("DistanceY", 23, 2, 28, 3, Q("5 mm")),
    Sketcher.Constraint("DistanceY", 8, 1, 8, 2, Q("9.05 mm")),
    Sketcher.Constraint("DistanceY", 23, 2, 23, 1, Q("136.46 mm")),
    Sketcher.Constraint("DistanceY", 8, 2, 30, 3, Q("14.2 mm")),
    Sketcher.Constraint("DistanceY", 3, 1, 3, 2, Q("19.875 mm")),
    Sketcher.Constraint("DistanceX", 14, 1, 14, 2, Q("4.994844 mm")),
    Sketcher.Constraint("DistanceY", -1, 1, 4, 3, Q("57.00083 mm")),
    Sketcher.Constraint("DistanceX", 14, 2, -1, 1, Q("38.57667 mm")),
])
pad2 = body2.newObject("PartDesign::Pad", "Pad001")
pad2.Profile = sketch2
pad2.Length = 0.118

doc.recompute()
